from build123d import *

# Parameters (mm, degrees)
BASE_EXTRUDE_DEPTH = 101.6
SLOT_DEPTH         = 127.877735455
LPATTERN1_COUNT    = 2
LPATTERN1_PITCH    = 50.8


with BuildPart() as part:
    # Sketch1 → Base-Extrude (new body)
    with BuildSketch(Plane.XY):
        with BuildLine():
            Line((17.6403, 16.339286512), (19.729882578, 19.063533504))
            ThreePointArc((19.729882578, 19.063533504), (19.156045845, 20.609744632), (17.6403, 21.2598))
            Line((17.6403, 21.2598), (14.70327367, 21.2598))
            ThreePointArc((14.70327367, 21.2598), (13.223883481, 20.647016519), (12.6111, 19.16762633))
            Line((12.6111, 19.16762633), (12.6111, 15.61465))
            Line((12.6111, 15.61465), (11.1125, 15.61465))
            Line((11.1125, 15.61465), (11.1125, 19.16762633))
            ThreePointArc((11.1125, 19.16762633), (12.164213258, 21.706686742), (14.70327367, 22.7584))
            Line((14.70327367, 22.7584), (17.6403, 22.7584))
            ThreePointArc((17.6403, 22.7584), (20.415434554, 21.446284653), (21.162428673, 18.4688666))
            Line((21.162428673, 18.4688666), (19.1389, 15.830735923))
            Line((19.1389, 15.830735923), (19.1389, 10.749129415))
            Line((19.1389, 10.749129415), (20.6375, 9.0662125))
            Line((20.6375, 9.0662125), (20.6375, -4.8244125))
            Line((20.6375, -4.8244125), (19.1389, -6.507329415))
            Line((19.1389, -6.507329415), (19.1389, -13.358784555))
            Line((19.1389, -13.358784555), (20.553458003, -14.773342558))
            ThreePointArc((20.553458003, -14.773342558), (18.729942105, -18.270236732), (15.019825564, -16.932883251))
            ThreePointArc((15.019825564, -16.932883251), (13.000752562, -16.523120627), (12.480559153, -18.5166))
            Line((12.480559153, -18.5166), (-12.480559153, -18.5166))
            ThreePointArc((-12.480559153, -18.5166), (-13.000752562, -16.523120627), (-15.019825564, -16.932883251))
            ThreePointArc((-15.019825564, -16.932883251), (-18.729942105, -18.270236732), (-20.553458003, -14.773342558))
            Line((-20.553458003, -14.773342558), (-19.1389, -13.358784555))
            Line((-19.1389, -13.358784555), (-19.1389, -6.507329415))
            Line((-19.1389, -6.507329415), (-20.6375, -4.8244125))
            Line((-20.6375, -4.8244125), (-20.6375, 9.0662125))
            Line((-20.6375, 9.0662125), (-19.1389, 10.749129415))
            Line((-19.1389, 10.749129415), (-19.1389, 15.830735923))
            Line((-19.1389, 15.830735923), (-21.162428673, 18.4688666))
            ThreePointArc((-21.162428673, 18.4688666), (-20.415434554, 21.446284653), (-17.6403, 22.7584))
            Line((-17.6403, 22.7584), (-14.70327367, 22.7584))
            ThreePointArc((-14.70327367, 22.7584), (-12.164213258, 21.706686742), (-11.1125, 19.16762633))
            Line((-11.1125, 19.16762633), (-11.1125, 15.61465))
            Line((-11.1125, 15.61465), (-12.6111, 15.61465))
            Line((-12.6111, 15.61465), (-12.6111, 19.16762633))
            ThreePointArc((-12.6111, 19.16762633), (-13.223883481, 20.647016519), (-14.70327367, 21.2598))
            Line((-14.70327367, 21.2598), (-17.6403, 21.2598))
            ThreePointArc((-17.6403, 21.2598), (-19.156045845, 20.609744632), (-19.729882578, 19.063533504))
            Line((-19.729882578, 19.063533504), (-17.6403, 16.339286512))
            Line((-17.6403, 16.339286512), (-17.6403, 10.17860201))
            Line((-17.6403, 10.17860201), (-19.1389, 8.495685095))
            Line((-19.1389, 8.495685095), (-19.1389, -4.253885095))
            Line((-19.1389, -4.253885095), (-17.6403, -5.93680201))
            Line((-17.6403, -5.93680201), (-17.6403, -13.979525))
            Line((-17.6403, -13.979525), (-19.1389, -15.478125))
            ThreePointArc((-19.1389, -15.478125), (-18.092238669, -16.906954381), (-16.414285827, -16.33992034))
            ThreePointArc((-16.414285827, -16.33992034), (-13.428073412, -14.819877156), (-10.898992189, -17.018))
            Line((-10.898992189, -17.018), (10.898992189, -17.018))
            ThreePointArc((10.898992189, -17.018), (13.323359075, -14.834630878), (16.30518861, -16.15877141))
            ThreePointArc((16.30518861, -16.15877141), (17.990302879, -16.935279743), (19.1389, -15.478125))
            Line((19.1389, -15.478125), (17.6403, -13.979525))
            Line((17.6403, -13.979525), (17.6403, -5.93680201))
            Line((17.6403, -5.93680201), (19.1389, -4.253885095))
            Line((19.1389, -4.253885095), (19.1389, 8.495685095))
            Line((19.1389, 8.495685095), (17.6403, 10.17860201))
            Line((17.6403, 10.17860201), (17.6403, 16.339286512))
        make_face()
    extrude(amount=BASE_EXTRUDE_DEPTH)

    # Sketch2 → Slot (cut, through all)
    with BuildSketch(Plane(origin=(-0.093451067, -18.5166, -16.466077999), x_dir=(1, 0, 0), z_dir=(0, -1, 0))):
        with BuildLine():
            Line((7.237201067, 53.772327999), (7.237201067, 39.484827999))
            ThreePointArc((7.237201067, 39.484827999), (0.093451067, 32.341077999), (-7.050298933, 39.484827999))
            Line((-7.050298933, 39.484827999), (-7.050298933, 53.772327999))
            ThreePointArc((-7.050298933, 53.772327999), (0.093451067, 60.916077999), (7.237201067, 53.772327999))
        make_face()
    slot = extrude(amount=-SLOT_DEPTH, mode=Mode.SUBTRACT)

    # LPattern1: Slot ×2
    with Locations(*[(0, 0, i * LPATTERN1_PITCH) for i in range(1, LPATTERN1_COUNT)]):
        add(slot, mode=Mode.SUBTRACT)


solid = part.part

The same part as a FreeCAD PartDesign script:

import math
import FreeCAD as App
import Part
import Sketcher
Q = App.Units.Quantity

doc = App.newDocument("Part")
params = doc.addObject("Spreadsheet::Sheet", "Params")
for row, (alias, value) in enumerate([
    ("sketch1_radius", "0.059 in"),
    ("sketch1_radius2", "0.118 in"),
    ("sketch1_width", "0.059 in"),
    ("sketch1_height", "0.546875 in"),
    ("pad1_length", "4 in"),
    ("sketch2_radius", "0.28125 in"),
    ("sketch2_height", "0.5625 in"),
    ("linearpattern_pitch", "2 in"),
], start=1):
    params.set(f"A{row}", alias)
    params.set(f"B{row}", "=" + value)
    params.setAlias(f"B{row}", alias)

body = doc.addObject("PartDesign::Body", "Body")

sketch1 = body.newObject("Sketcher::SketchObject", "Sketch")
sketch1.AttachmentSupport = (doc.getObject("XY_Plane"), [""])
sketch1.MapMode = "FlatFace"
sketch1.addGeometry(Part.LineSegment(App.Vector(19.729883, 19.063534, 0), App.Vector(17.6403, 16.339287, 0)), False)
sketch1.addGeometry(Part.LineSegment(App.Vector(17.6403, 16.339287, 0), App.Vector(17.6403, 10.178602, 0)), False)
sketch1.addGeometry(Part.LineSegment(App.Vector(17.6403, 10.178602, 0), App.Vector(19.1389, 8.495685, 0)), False)
sketch1.addGeometry(Part.LineSegment(App.Vector(19.1389, 8.495685, 0), App.Vector(19.1389, -4.253885, 0)), False)
sketch1.addGeometry(Part.LineSegment(App.Vector(19.1389, -4.253885, 0), App.Vector(17.6403, -5.936802, 0)), False)
sketch1.addGeometry(Part.LineSegment(App.Vector(17.6403, -5.936802, 0), App.Vector(17.6403, -13.979525, 0)), False)
sketch1.addGeometry(Part.LineSegment(App.Vector(17.6403, -13.979525, 0), App.Vector(19.1389, -15.478125, 0)), False)
sketch1.addGeometry(Part.ArcOfCircle(Part.Circle(App.Vector(17.6403, -15.478125, 0), App.Vector(0, 0, 1), 1.4986), math.radians(-152.987287), math.radians(0)), False)
sketch1.addGeometry(Part.ArcOfCircle(Part.Circle(App.Vector(13.793811, -17.794679, 0), App.Vector(0, 0, 1), 2.9972), math.radians(33.080158), math.radians(164.981274)), False)
sketch1.addGeometry(Part.LineSegment(App.Vector(10.898992, -17.018, 0), App.Vector(-10.898992, -17.018, 0)), False)
sketch1.addGeometry(Part.ArcOfCircle(Part.Circle(App.Vector(-13.793811, -17.794679, 0), App.Vector(0, 0, 1), 2.9972), math.radians(15.018726), math.radians(150.963124)), False)
sketch1.addGeometry(Part.ArcOfCircle(Part.Circle(App.Vector(-17.6403, -15.478125, 0), App.Vector(0, 0, 1), 1.4986), math.radians(180), math.radians(324.895679)), False)
sketch1.addGeometry(Part.LineSegment(App.Vector(-19.1389, -15.478125, 0), App.Vector(-17.6403, -13.979525, 0)), False)
sketch1.addGeometry(Part.LineSegment(App.Vector(-17.6403, -13.979525, 0), App.Vector(-17.6403, -5.936802, 0)), False)
sketch1.addGeometry(Part.LineSegment(App.Vector(-17.6403, -5.936802, 0), App.Vector(-19.1389, -4.253885, 0)), False)
sketch1.addGeometry(Part.LineSegment(App.Vector(-19.1389, -4.253885, 0), App.Vector(-19.1389, 8.495685, 0)), False)
sketch1.addGeometry(Part.LineSegment(App.Vector(-19.1389, 8.495685, 0), App.Vector(-17.6403, 10.178602, 0)), False)
sketch1.addGeometry(Part.LineSegment(App.Vector(-17.6403, 10.178602, 0), App.Vector(-17.6403, 16.339287, 0)), False)
sketch1.addGeometry(Part.LineSegment(App.Vector(-17.6403, 16.339287, 0), App.Vector(-19.729883, 19.063534, 0)), False)
sketch1.addGeometry(Part.ArcOfCircle(Part.Circle(App.Vector(-17.6403, 19.167626, 0), App.Vector(0, 0, 1), 2.092174), math.radians(90), math.radians(182.851839)), False)
sketch1.addGeometry(Part.LineSegment(App.Vector(-17.6403, 21.2598, 0), App.Vector(-14.703274, 21.2598, 0)), False)
sketch1.addGeometry(Part.ArcOfCircle(Part.Circle(App.Vector(-14.703274, 19.167626, 0), App.Vector(0, 0, 1), 2.092174), math.radians(0), math.radians(90)), False)
sketch1.addGeometry(Part.LineSegment(App.Vector(-12.6111, 19.167626, 0), App.Vector(-12.6111, 15.61465, 0)), False)
sketch1.addGeometry(Part.LineSegment(App.Vector(-12.6111, 15.61465, 0), App.Vector(-11.1125, 15.61465, 0)), False)
sketch1.addGeometry(Part.LineSegment(App.Vector(-11.1125, 15.61465, 0), App.Vector(-11.1125, 19.167626, 0)), False)
sketch1.addGeometry(Part.ArcOfCircle(Part.Circle(App.Vector(-14.703274, 19.167626, 0), App.Vector(0, 0, 1), 3.590774), math.radians(0), math.radians(90)), False)
sketch1.addGeometry(Part.LineSegment(App.Vector(-14.703274, 22.7584, 0), App.Vector(-17.6403, 22.7584, 0)), False)
sketch1.addGeometry(Part.ArcOfCircle(Part.Circle(App.Vector(-17.6403, 19.167626, 0), App.Vector(0, 0, 1), 3.590774), math.radians(90), math.radians(191.221279)), False)
sketch1.addGeometry(Part.LineSegment(App.Vector(-21.162429, 18.468867, 0), App.Vector(-19.1389, 15.830736, 0)), False)
sketch1.addGeometry(Part.LineSegment(App.Vector(-19.1389, 15.830736, 0), App.Vector(-19.1389, 10.749129, 0)), False)
sketch1.addGeometry(Part.LineSegment(App.Vector(-19.1389, 10.749129, 0), App.Vector(-20.6375, 9.066213, 0)), False)
sketch1.addGeometry(Part.LineSegment(App.Vector(-20.6375, 9.066213, 0), App.Vector(-20.6375, -4.824413, 0)), False)
sketch1.addGeometry(Part.LineSegment(App.Vector(-20.6375, -4.824413, 0), App.Vector(-19.1389, -6.507329, 0)), False)
sketch1.addGeometry(Part.LineSegment(App.Vector(-19.1389, -6.507329, 0), App.Vector(-19.1389, -13.358785, 0)), False)
sketch1.addGeometry(Part.LineSegment(App.Vector(-19.1389, -13.358785, 0), App.Vector(-20.553458, -14.773343, 0)), False)
sketch1.addGeometry(Part.ArcOfCircle(Part.Circle(App.Vector(-17.6403, -15.478125, 0), App.Vector(0, 0, 1), 2.9972), math.radians(166.399715), math.radians(330.963124)), False)
sketch1.addGeometry(Part.ArcOfCircle(Part.Circle(App.Vector(-13.793811, -17.794679, 0), App.Vector(0, 0, 1), 1.4986), math.radians(-28.798488), math.radians(144.895679)), False)
sketch1.addGeometry(Part.LineSegment(App.Vector(-12.480559, -18.5166, 0), App.Vector(12.480559, -18.5166, 0)), False)
sketch1.addGeometry(Part.ArcOfCircle(Part.Circle(App.Vector(13.793811, -17.794679, 0), App.Vector(0, 0, 1), 1.4986), math.radians(35.104321), math.radians(208.798488)), False)
sketch1.addGeometry(Part.ArcOfCircle(Part.Circle(App.Vector(17.6403, -15.478125, 0), App.Vector(0, 0, 1), 2.9972), math.radians(-150.963124), math.radians(13.600285)), False)
sketch1.addGeometry(Part.LineSegment(App.Vector(20.553458, -14.773343, 0), App.Vector(19.1389, -13.358785, 0)), False)
sketch1.addGeometry(Part.LineSegment(App.Vector(19.1389, -13.358785, 0), App.Vector(19.1389, -6.507329, 0)), False)
sketch1.addGeometry(Part.LineSegment(App.Vector(19.1389, -6.507329, 0), App.Vector(20.6375, -4.824413, 0)), False)
sketch1.addGeometry(Part.LineSegment(App.Vector(20.6375, -4.824413, 0), App.Vector(20.6375, 9.066213, 0)), False)
sketch1.addGeometry(Part.LineSegment(App.Vector(20.6375, 9.066213, 0), App.Vector(19.1389, 10.749129, 0)), False)
sketch1.addGeometry(Part.LineSegment(App.Vector(19.1389, 10.749129, 0), App.Vector(19.1389, 15.830736, 0)), False)
sketch1.addGeometry(Part.LineSegment(App.Vector(19.1389, 15.830736, 0), App.Vector(21.162429, 18.468867, 0)), False)
sketch1.addGeometry(Part.ArcOfCircle(Part.Circle(App.Vector(17.6403, 19.167626, 0), App.Vector(0, 0, 1), 3.590774), math.radians(-11.221279), math.radians(90)), False)
sketch1.addGeometry(Part.LineSegment(App.Vector(17.6403, 22.7584, 0), App.Vector(14.703274, 22.7584, 0)), False)
sketch1.addGeometry(Part.ArcOfCircle(Part.Circle(App.Vector(14.703274, 19.167626, 0), App.Vector(0, 0, 1), 3.590774), math.radians(90), math.radians(180)), False)
sketch1.addGeometry(Part.LineSegment(App.Vector(11.1125, 19.167626, 0), App.Vector(11.1125, 15.61465, 0)), False)
sketch1.addGeometry(Part.LineSegment(App.Vector(11.1125, 15.61465, 0), App.Vector(12.6111, 15.61465, 0)), False)
sketch1.addGeometry(Part.LineSegment(App.Vector(12.6111, 15.61465, 0), App.Vector(12.6111, 19.167626, 0)), False)
sketch1.addGeometry(Part.ArcOfCircle(Part.Circle(App.Vector(14.703274, 19.167626, 0), App.Vector(0, 0, 1), 2.092174), math.radians(90), math.radians(180)), False)
sketch1.addGeometry(Part.LineSegment(App.Vector(14.703274, 21.2598, 0), App.Vector(17.6403, 21.2598, 0)), False)
sketch1.addGeometry(Part.ArcOfCircle(Part.Circle(App.Vector(17.6403, 19.167626, 0), App.Vector(0, 0, 1), 2.092174), math.radians(-2.851839), math.radians(90)), False)
sketch1.addConstraint(Sketcher.Constraint("Coincident", 0, 2, 1, 1))
sketch1.addConstraint(Sketcher.Constraint("Coincident", 1, 2, 2, 1))
sketch1.addConstraint(Sketcher.Constraint("Coincident", 2, 2, 3, 1))
sketch1.addConstraint(Sketcher.Constraint("Coincident", 3, 2, 4, 1))
sketch1.addConstraint(Sketcher.Constraint("Coincident", 4, 2, 5, 1))
sketch1.addConstraint(Sketcher.Constraint("Coincident", 5, 2, 6, 1))
sketch1.addConstraint(Sketcher.Constraint("Coincident", 6, 2, 7, 2))
sketch1.addConstraint(Sketcher.Constraint("Coincident", 7, 1, 8, 1))
sketch1.addConstraint(Sketcher.Constraint("Coincident", 8, 2, 9, 1))
sketch1.addConstraint(Sketcher.Constraint("Coincident", 9, 2, 10, 1))
sketch1.addConstraint(Sketcher.Constraint("Coincident", 10, 2, 11, 2))
sketch1.addConstraint(Sketcher.Constraint("Coincident", 11, 1, 12, 1))
sketch1.addConstraint(Sketcher.Constraint("Coincident", 12, 2, 13, 1))
sketch1.addConstraint(Sketcher.Constraint("Coincident", 13, 2, 14, 1))
sketch1.addConstraint(Sketcher.Constraint("Coincident", 14, 2, 15, 1))
sketch1.addConstraint(Sketcher.Constraint("Coincident", 15, 2, 16, 1))
sketch1.addConstraint(Sketcher.Constraint("Coincident", 16, 2, 17, 1))
sketch1.addConstraint(Sketcher.Constraint("Coincident", 17, 2, 18, 1))
sketch1.addConstraint(Sketcher.Constraint("Coincident", 18, 2, 19, 2))
sketch1.addConstraint(Sketcher.Constraint("Tangent", 19, 1, 20, 1))
sketch1.addConstraint(Sketcher.Constraint("Tangent", 20, 2, 21, 2))
sketch1.addConstraint(Sketcher.Constraint("Tangent", 21, 1, 22, 1))
sketch1.addConstraint(Sketcher.Constraint("Coincident", 22, 2, 23, 1))
sketch1.addConstraint(Sketcher.Constraint("Coincident", 23, 2, 24, 1))
sketch1.addConstraint(Sketcher.Constraint("Tangent", 24, 2, 25, 1))
sketch1.addConstraint(Sketcher.Constraint("Tangent", 25, 2, 26, 1))
sketch1.addConstraint(Sketcher.Constraint("Tangent", 26, 2, 27, 1))
sketch1.addConstraint(Sketcher.Constraint("Coincident", 27, 2, 28, 1))
sketch1.addConstraint(Sketcher.Constraint("Coincident", 28, 2, 29, 1))
sketch1.addConstraint(Sketcher.Constraint("Coincident", 29, 2, 30, 1))
sketch1.addConstraint(Sketcher.Constraint("Coincident", 30, 2, 31, 1))
sketch1.addConstraint(Sketcher.Constraint("Coincident", 31, 2, 32, 1))
sketch1.addConstraint(Sketcher.Constraint("Coincident", 32, 2, 33, 1))
sketch1.addConstraint(Sketcher.Constraint("Coincident", 33, 2, 34, 1))
sketch1.addConstraint(Sketcher.Constraint("Coincident", 34, 2, 35, 1))
sketch1.addConstraint(Sketcher.Constraint("Coincident", 35, 2, 36, 2))
sketch1.addConstraint(Sketcher.Constraint("Coincident", 36, 1, 37, 1))
sketch1.addConstraint(Sketcher.Constraint("Coincident", 37, 2, 38, 2))
sketch1.addConstraint(Sketcher.Constraint("Coincident", 38, 1, 39, 1))
sketch1.addConstraint(Sketcher.Constraint("Coincident", 39, 2, 40, 1))
sketch1.addConstraint(Sketcher.Constraint("Coincident", 40, 2, 41, 1))
sketch1.addConstraint(Sketcher.Constraint("Coincident", 41, 2, 42, 1))
sketch1.addConstraint(Sketcher.Constraint("Coincident", 42, 2, 43, 1))
sketch1.addConstraint(Sketcher.Constraint("Coincident", 43, 2, 44, 1))
sketch1.addConstraint(Sketcher.Constraint("Coincident", 44, 2, 45, 1))
sketch1.addConstraint(Sketcher.Constraint("Coincident", 45, 2, 46, 1))
sketch1.addConstraint(Sketcher.Constraint("Coincident", 46, 2, 47, 1))
sketch1.addConstraint(Sketcher.Constraint("Tangent", 47, 2, 48, 1))
sketch1.addConstraint(Sketcher.Constraint("Tangent", 48, 2, 49, 1))
sketch1.addConstraint(Sketcher.Constraint("Tangent", 49, 2, 50, 1))
sketch1.addConstraint(Sketcher.Constraint("Coincident", 50, 2, 51, 1))
sketch1.addConstraint(Sketcher.Constraint("Coincident", 51, 2, 52, 1))
sketch1.addConstraint(Sketcher.Constraint("Tangent", 52, 2, 53, 2))
sketch1.addConstraint(Sketcher.Constraint("Tangent", 53, 1, 54, 1))
sketch1.addConstraint(Sketcher.Constraint("Tangent", 54, 2, 55, 2))
sketch1.addConstraint(Sketcher.Constraint("Coincident", 55, 1, 0, 1))
sketch1.addConstraint(Sketcher.Constraint("Vertical", 1))
sketch1.addConstraint(Sketcher.Constraint("Vertical", 3))
sketch1.addConstraint(Sketcher.Constraint("Vertical", 5))
sketch1.addConstraint(Sketcher.Constraint("Horizontal", 9))
sketch1.addConstraint(Sketcher.Constraint("Vertical", 13))
sketch1.addConstraint(Sketcher.Constraint("Vertical", 15))
sketch1.addConstraint(Sketcher.Constraint("Vertical", 17))
sketch1.addConstraint(Sketcher.Constraint("Horizontal", 20))
sketch1.addConstraint(Sketcher.Constraint("Vertical", 22))
sketch1.addConstraint(Sketcher.Constraint("Horizontal", 23))
sketch1.addConstraint(Sketcher.Constraint("Vertical", 24))
sketch1.addConstraint(Sketcher.Constraint("Horizontal", 26))
sketch1.addConstraint(Sketcher.Constraint("Vertical", 29))
sketch1.addConstraint(Sketcher.Constraint("Vertical", 31))
sketch1.addConstraint(Sketcher.Constraint("Vertical", 33))
sketch1.addConstraint(Sketcher.Constraint("Horizontal", 37))
sketch1.addConstraint(Sketcher.Constraint("Vertical", 41))
sketch1.addConstraint(Sketcher.Constraint("Vertical", 43))
sketch1.addConstraint(Sketcher.Constraint("Vertical", 45))
sketch1.addConstraint(Sketcher.Constraint("Horizontal", 48))
sketch1.addConstraint(Sketcher.Constraint("Vertical", 50))
sketch1.addConstraint(Sketcher.Constraint("Horizontal", 51))
sketch1.addConstraint(Sketcher.Constraint("Vertical", 52))
sketch1.addConstraint(Sketcher.Constraint("Horizontal", 54))
sketch1.addConstraint(Sketcher.Constraint("Coincident", 25, 3, 21, 3))
sketch1.addConstraint(Sketcher.Constraint("Coincident", 27, 3, 19, 3))
sketch1.addConstraint(Sketcher.Constraint("Coincident", 35, 3, 11, 3))
sketch1.addConstraint(Sketcher.Constraint("Coincident", 36, 3, 10, 3))
sketch1.addConstraint(Sketcher.Constraint("Coincident", 38, 3, 8, 3))
sketch1.addConstraint(Sketcher.Constraint("Coincident", 39, 3, 7, 3))
sketch1.addConstraint(Sketcher.Constraint("Coincident", 53, 3, 49, 3))
sketch1.addConstraint(Sketcher.Constraint("Coincident", 55, 3, 47, 3))
sketch1.addConstraint(Sketcher.Constraint("Equal", 8, 10))
sketch1.addConstraint(Sketcher.Constraint("Equal", 7, 11))
sketch1.addConstraint(Sketcher.Constraint("Equal", 19, 21))
sketch1.addConstraint(Sketcher.Constraint("Equal", 10, 35))
sketch1.addConstraint(Sketcher.Constraint("Equal", 11, 36))
sketch1.addConstraint(Sketcher.Constraint("Equal", 36, 38))
sketch1.addConstraint(Sketcher.Constraint("Equal", 35, 39))
sketch1.addConstraint(Sketcher.Constraint("Equal", 27, 47))
sketch1.addConstraint(Sketcher.Constraint("Equal", 47, 49))
sketch1.addConstraint(Sketcher.Constraint("Equal", 21, 53))
sketch1.addConstraint(Sketcher.Constraint("Symmetric", 8, 3, 10, 3, -2))
sketch1.addConstraint(Sketcher.Constraint("Symmetric", 7, 3, 11, 3, -2))
sketch1.addConstraint(Sketcher.Constraint("Symmetric", 19, 3, 47, 3, -2))
sketch1.addConstraint(Sketcher.Constraint("Symmetric", 5, 2, 12, 2, -2))
sketch1.addConstraint(Sketcher.Constraint("Symmetric", 3, 2, 14, 2, -2))
sketch1.addConstraint(Sketcher.Constraint("Symmetric", 1, 2, 16, 2, -2))
sketch1.addConstraint(Sketcher.Constraint("Symmetric", 33, 2, 40, 2, -2))
sketch1.addConstraint(Sketcher.Constraint("Symmetric", 31, 2, 42, 2, -2))
sketch1.addConstraint(Sketcher.Constraint("Symmetric", 29, 2, 44, 2, -2))
sketch1.addConstraint(Sketcher.Constraint("Symmetric", 23, 2, 50, 2, -2))
sketch1.addConstraint(Sketcher.Constraint("Perpendicular", 6, 12))
sketch1.addConstraint(Sketcher.Constraint("Parallel", 2, 14))
sketch1.addConstraint(Sketcher.Constraint("Parallel", 4, 16))
sketch1.addConstraint(Sketcher.Constraint("Parallel", 18, 28))
sketch1.addConstraint(Sketcher.Constraint("Parallel", 16, 30))
sketch1.addConstraint(Sketcher.Constraint("Parallel", 14, 32))
sketch1.addConstraint(Sketcher.Constraint("Parallel", 12, 34))
sketch1.addConstraint(Sketcher.Constraint("Perpendicular", 34, 40))
sketch1.addConstraint(Sketcher.Constraint("Parallel", 30, 42))
sketch1.addConstraint(Sketcher.Constraint("Parallel", 32, 44))
sketch1.addConstraint(Sketcher.Constraint("Parallel", 0, 46))
sketch1.addConstraint(Sketcher.Constraint("Horizontal", 39, 3, 6, 2))
sketch1.addConstraint(Sketcher.Constraint("Horizontal", 6, 2, 11, 1))
sketch1.addConstraint(Sketcher.Constraint("Horizontal", 4, 2, 13, 2))
sketch1.addConstraint(Sketcher.Constraint("Horizontal", 0, 2, 17, 2))
sketch1.addConstraint(Sketcher.Constraint("Horizontal", 28, 2, 45, 2))
sketch1.addConstraint(Sketcher.Constraint("Horizontal", 27, 2, 46, 2))
sketch1.addConstraint(Sketcher.Constraint("Vertical", 11, 3, 19, 3))
sketch1.addConstraint(Sketcher.Constraint("Vertical", 55, 3, 0, 2))
sketch1.addConstraint(Sketcher.Constraint("Vertical", 1, 2, 4, 2))
sketch1.addConstraint(Sketcher.Constraint("Vertical", 3, 2, 6, 2))
sketch1.addConstraint(Sketcher.Constraint("Vertical", 15, 2, 28, 2))
sketch1.addConstraint(Sketcher.Constraint("Vertical", 29, 2, 32, 2))
sketch1.addConstraint(Sketcher.Constraint("Equal", 16, 30))
sketch1.addConstraint(Sketcher.Constraint("Radius", 7, Q("0.059 in")))
sketch1.addConstraint(Sketcher.Constraint("Radius", 8, Q("0.118 in")))
sketch1.addConstraint(Sketcher.Constraint("DistanceX", 23, 1, 23, 2, Q("0.059 in")))
sketch1.addConstraint(Sketcher.Constraint("DistanceY", 31, 2, 31, 1, Q("0.546875 in")))
sketch1.addConstraint(Sketcher.Constraint("DistanceY", 8, 2, -1, 1, Q("0.67 in")))
sketch1.addConstraint(Sketcher.Constraint("DistanceY", 7, 3, -1, 1, Q("0.609375 in")))
sketch1.addConstraint(Sketcher.Constraint("DistanceY", -1, 1, 19, 1, Q("0.837 in")))
sketch1.addConstraint(Sketcher.Constraint("DistanceX", 23, 2, -1, 1, Q("0.4375 in")))
sketch1.addConstraint(Sketcher.Constraint("DistanceX", 30, 2, -1, 1, Q("0.8125 in")))
sketch1.addConstraint(Sketcher.Constraint("DistanceY", 36, 1, -1, 1, Q("0.729 in")))
sketch1.addConstraint(Sketcher.Constraint("Radius", 19, Q("2.092174 mm")))
sketch1.addConstraint(Sketcher.Constraint("DistanceX", 37, 1, 37, 2, Q("24.961118 mm")))
sketch1.addConstraint(Sketcher.Constraint("DistanceY", 3, 2, 3, 1, Q("12.74957 mm")))
sketch1.addConstraint(Sketcher.Constraint("DistanceX", 9, 2, 9, 1, Q("21.797984 mm")))
sketch1.addConstraint(Sketcher.Constraint("DistanceY", 1, 2, 1, 1, Q("6.160685 mm")))
sketch1.addConstraint(Sketcher.Constraint("DistanceY", 5, 2, 5, 1, Q("8.042723 mm")))
sketch1.addConstraint(Sketcher.Constraint("DistanceY", 22, 2, 22, 1, Q("3.552976 mm")))
sketch1.addConstraint(Sketcher.Constraint("DistanceY", 29, 2, 29, 1, Q("5.081607 mm")))
sketch1.addConstraint(Sketcher.Constraint("DistanceY", 33, 2, 33, 1, Q("6.851455 mm")))
sketch1.addConstraint(Sketcher.Constraint("DistanceX", 27, 2, -1, 1, Q("21.162429 mm")))
sketch1.addConstraint(Sketcher.Constraint("DistanceY", -1, 1, 29, 2, Q("10.749129 mm")))
sketch1.addConstraint(Sketcher.Constraint("DistanceY", 32, 2, -1, 1, Q("6.507329 mm")))
sketch1.setExpression("Constraints[132]", "Params.sketch1_radius")
sketch1.setExpression("Constraints[133]", "Params.sketch1_radius2")
sketch1.setExpression("Constraints[134]", "Params.sketch1_width")
sketch1.setExpression("Constraints[135]", "Params.sketch1_height")
pad1 = body.newObject("PartDesign::Pad", "Pad")
pad1.Profile = sketch1
pad1.setExpression("Length", "Params.pad1_length")

sketch2 = body.newObject("Sketcher::SketchObject", "Sketch001")
sketch2.AttachmentSupport = (doc.getObject("XZ_Plane"), [""])
sketch2.MapMode = "FlatFace"
sketch2.AttachmentOffset = App.Placement(App.Vector(0, 0, 0.729 * 25.4), App.Rotation())
sketch2.addGeometry(Part.LineSegment(App.Vector(7.14375, 23.01875, 0), App.Vector(7.14375, 37.30625, 0)), False)
sketch2.addGeometry(Part.ArcOfCircle(Part.Circle(App.Vector(0, 37.30625, 0), App.Vector(0, 0, 1), 7.14375), math.radians(0), math.radians(180)), False)
sketch2.addGeometry(Part.LineSegment(App.Vector(-7.14375, 37.30625, 0), App.Vector(-7.14375, 23.01875, 0)), False)
sketch2.addGeometry(Part.ArcOfCircle(Part.Circle(App.Vector(0, 23.01875, 0), App.Vector(0, 0, 1), 7.14375), math.radians(180), math.radians(360)), False)
sketch2.addConstraint(Sketcher.Constraint("Tangent", 0, 2, 1, 1))
sketch2.addConstraint(Sketcher.Constraint("Tangent", 1, 2, 2, 1))
sketch2.addConstraint(Sketcher.Constraint("Tangent", 2, 2, 3, 1))
sketch2.addConstraint(Sketcher.Constraint("Tangent", 3, 2, 0, 1))
sketch2.addConstraint(Sketcher.Constraint("Vertical", 0))
sketch2.addConstraint(Sketcher.Constraint("Vertical", 2))
sketch2.addConstraint(Sketcher.Constraint("PointOnObject", 1, 3, -2))
sketch2.addConstraint(Sketcher.Constraint("Radius", 1, Q("0.28125 in")))
sketch2.addConstraint(Sketcher.Constraint("DistanceY", 0, 1, 0, 2, Q("0.5625 in")))
sketch2.addConstraint(Sketcher.Constraint("DistanceY", -1, 1, 1, 3, Q("1.46875 in")))
sketch2.setExpression("Constraints[7]", "Params.sketch2_radius")
sketch2.setExpression("Constraints[8]", "Params.sketch2_height")
pocket1 = body.newObject("PartDesign::Pocket", "Pocket")
pocket1.Profile = sketch2
pocket1.Type = "ThroughAll"
doc.recompute()

linearpattern = body.newObject("PartDesign::LinearPattern", "LinearPattern")
linearpattern.Originals = [pocket1]
linearpattern.Direction = (doc.getObject("Z_Axis"), [""])
linearpattern.Mode = "offset"
linearpattern.setExpression("Offset", "Params.linearpattern_pitch")
linearpattern.Occurrences = 2
body.Tip = linearpattern

doc.recompute()
